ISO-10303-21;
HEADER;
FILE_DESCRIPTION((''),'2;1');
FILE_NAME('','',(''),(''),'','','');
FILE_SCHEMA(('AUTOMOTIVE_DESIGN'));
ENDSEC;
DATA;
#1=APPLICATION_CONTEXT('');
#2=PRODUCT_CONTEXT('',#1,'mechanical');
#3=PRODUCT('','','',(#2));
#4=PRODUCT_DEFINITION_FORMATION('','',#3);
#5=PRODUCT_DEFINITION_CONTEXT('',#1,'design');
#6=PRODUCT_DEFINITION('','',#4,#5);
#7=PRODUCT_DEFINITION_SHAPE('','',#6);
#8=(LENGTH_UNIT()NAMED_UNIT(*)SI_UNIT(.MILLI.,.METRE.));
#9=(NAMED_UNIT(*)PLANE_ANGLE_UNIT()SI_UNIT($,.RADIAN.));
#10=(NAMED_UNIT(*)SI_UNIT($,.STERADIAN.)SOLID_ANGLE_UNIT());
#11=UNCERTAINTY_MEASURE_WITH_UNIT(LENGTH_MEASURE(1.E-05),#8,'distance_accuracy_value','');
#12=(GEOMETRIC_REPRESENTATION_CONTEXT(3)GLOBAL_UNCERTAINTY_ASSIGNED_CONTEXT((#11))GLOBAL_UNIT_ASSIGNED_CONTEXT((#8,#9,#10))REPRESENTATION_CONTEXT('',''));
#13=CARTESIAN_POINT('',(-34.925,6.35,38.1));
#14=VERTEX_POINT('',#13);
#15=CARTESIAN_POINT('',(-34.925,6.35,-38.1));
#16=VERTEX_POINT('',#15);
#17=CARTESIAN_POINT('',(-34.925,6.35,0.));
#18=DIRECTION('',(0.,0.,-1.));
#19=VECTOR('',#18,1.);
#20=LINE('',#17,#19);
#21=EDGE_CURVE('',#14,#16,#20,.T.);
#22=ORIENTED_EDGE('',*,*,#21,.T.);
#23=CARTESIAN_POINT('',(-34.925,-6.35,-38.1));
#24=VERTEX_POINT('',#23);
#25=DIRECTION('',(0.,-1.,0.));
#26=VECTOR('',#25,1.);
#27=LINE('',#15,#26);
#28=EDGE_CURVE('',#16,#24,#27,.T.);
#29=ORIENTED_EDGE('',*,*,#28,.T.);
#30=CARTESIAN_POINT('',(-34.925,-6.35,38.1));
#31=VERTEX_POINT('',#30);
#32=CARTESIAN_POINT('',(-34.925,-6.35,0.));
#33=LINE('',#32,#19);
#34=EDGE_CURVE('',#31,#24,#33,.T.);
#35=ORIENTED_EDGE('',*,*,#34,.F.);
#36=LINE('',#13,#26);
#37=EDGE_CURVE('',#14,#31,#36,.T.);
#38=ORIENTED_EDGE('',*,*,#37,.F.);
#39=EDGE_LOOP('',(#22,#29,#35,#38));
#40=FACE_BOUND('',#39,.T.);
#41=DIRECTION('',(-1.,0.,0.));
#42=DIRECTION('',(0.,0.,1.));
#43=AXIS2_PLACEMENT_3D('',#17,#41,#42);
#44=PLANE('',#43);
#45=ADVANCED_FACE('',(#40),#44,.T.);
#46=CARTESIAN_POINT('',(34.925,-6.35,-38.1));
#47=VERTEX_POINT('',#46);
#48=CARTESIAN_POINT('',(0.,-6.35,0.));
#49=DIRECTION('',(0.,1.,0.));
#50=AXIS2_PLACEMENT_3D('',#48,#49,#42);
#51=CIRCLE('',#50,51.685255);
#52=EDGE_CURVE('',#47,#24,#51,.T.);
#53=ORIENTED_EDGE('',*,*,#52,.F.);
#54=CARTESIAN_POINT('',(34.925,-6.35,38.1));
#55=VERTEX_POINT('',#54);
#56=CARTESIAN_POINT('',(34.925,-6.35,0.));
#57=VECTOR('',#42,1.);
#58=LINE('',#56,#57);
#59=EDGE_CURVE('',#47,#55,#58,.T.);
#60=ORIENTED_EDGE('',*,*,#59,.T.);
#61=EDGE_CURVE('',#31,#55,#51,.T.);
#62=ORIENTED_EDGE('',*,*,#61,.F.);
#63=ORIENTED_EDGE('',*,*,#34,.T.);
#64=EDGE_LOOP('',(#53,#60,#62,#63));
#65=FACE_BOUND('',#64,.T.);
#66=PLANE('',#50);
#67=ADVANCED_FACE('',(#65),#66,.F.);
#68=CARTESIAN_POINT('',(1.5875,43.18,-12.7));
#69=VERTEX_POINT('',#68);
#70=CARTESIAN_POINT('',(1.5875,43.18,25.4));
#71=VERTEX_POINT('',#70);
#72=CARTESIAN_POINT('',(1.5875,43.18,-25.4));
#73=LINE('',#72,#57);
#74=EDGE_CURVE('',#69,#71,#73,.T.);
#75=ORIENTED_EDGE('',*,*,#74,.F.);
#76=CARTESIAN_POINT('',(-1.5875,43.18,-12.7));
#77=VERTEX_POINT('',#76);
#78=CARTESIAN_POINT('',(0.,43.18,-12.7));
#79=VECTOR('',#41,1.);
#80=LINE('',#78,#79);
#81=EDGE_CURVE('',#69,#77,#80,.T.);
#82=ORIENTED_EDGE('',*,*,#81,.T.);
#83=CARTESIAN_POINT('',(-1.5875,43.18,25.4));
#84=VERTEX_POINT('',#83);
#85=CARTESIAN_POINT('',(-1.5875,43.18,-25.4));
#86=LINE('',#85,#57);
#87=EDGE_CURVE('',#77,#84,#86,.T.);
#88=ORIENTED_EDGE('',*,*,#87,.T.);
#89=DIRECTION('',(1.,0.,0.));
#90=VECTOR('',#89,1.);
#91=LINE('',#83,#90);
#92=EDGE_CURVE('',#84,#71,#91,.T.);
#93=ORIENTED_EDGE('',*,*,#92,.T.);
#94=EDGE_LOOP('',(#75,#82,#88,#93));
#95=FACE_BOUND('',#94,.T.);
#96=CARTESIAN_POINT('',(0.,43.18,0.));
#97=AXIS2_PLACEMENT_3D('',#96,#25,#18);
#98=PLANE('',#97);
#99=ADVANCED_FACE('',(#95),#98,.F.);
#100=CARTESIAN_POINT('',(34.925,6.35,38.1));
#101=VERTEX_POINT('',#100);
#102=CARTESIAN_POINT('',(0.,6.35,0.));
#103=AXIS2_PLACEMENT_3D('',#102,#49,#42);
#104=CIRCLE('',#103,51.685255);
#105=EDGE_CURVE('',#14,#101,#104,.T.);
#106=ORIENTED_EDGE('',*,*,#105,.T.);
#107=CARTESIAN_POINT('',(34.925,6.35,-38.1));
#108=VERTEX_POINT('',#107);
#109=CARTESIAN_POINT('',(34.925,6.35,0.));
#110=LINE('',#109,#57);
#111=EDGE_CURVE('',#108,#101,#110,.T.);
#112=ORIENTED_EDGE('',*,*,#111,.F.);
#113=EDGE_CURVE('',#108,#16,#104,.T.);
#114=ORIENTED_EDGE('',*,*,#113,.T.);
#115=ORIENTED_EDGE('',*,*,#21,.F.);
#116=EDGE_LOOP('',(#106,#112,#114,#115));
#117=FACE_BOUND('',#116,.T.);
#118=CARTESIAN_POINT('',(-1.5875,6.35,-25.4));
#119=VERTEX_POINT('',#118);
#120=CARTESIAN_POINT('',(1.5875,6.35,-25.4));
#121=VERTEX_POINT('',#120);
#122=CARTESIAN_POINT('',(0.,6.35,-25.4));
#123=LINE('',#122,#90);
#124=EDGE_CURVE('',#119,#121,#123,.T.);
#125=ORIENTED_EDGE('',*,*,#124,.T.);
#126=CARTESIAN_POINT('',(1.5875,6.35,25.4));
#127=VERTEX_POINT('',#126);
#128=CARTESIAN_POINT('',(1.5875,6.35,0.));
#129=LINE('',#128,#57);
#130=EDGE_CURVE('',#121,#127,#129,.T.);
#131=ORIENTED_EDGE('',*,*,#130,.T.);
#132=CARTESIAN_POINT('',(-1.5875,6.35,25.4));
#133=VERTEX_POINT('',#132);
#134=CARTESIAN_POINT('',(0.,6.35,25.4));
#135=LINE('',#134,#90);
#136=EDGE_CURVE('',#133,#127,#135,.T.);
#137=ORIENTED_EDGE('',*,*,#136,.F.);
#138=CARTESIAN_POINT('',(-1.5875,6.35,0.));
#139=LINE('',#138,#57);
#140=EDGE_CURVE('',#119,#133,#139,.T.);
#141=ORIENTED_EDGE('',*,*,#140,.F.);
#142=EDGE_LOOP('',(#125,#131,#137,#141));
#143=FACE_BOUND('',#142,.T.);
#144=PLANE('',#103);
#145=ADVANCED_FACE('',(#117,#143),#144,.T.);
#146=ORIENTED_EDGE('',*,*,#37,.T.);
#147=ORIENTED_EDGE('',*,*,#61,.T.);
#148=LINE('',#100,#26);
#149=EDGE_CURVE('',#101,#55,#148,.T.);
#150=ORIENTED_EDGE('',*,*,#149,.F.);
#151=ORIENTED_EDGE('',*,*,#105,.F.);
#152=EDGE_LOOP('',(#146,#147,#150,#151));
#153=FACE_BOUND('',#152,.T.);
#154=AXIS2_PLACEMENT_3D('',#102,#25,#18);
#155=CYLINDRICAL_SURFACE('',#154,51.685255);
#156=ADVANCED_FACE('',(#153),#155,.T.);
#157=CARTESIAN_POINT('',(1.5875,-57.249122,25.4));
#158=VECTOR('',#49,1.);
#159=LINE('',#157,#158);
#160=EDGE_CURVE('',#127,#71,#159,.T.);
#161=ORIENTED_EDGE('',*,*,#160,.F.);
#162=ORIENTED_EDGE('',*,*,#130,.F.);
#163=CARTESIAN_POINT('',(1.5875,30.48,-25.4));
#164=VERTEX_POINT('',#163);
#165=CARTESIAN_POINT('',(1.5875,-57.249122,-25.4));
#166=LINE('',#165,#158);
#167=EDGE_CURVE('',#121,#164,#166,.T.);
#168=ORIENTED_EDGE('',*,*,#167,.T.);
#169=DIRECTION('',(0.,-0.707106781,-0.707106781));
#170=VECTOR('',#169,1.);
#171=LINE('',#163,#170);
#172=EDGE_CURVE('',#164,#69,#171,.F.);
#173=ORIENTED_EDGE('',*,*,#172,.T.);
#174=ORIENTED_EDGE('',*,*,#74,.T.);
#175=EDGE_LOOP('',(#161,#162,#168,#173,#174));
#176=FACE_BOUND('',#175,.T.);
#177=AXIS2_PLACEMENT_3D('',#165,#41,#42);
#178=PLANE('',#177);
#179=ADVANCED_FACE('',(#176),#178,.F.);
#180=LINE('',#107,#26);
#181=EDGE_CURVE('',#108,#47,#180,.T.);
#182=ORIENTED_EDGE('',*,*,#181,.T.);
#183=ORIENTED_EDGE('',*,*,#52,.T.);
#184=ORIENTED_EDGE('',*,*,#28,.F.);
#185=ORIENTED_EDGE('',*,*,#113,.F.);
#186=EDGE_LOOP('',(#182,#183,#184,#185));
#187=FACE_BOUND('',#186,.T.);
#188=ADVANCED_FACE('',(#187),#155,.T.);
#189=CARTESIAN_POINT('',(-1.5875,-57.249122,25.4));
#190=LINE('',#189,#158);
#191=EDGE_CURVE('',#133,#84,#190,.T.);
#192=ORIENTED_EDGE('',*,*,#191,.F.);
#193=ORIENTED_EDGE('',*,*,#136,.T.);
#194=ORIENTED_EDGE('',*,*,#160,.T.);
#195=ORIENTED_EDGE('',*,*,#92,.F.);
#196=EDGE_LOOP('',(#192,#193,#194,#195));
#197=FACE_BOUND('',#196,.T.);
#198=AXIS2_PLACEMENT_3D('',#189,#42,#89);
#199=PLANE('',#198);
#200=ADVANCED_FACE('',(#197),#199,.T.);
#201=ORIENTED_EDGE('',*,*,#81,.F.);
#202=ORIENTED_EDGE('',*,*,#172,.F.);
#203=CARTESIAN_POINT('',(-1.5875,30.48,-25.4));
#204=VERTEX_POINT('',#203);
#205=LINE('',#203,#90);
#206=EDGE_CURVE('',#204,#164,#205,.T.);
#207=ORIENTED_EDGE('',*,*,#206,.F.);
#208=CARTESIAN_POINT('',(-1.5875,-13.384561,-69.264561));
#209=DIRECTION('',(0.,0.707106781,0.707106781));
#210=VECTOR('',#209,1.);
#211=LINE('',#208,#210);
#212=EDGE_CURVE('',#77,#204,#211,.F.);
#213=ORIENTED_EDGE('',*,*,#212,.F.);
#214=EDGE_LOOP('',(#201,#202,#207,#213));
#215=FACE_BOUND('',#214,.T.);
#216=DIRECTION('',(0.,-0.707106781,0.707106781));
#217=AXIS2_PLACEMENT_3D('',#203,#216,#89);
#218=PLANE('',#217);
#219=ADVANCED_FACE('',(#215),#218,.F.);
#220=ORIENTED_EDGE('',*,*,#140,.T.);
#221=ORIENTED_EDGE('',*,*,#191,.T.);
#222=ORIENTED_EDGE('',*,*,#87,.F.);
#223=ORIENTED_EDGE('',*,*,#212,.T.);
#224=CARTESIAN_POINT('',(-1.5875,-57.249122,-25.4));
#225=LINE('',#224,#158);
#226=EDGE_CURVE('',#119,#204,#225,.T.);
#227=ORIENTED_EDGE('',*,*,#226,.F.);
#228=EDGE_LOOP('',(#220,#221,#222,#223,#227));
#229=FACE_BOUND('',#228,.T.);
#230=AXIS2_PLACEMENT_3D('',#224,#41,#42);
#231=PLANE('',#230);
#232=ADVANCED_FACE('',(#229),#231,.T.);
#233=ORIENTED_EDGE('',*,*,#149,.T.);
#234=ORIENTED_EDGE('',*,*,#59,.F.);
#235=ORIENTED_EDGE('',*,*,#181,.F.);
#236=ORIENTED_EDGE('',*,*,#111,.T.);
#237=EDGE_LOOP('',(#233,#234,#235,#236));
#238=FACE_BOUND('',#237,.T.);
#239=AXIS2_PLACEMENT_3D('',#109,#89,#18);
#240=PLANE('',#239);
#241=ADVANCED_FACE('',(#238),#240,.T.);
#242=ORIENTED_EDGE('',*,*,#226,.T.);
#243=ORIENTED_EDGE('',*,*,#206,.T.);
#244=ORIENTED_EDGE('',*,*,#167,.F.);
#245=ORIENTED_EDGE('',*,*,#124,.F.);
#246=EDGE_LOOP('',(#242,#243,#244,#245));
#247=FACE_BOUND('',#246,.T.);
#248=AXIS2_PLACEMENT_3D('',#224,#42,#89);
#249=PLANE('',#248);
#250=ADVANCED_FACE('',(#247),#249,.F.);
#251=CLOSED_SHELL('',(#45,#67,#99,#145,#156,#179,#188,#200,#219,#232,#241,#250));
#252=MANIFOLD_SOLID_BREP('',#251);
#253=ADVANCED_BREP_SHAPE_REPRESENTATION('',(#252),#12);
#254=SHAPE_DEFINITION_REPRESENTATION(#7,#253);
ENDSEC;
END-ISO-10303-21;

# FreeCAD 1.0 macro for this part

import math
import FreeCAD as App
import Part
import Sketcher
Q = App.Units.Quantity


def edges_at(feature, points):
    """Names of the edges that pass closest to the given points."""
    edges = feature.Shape.Edges
    near = lambda p: min(range(len(edges)), key=lambda i: edges[i].distToShape(Part.Vertex(*p))[0])
    return sorted({f"Edge{near(p) + 1}" for p in points})


def add_polygon(sketch, points):
    """Adds a closed chain of lines whose ends are joined by coincident constraints."""
    first, n = sketch.GeometryCount, len(points)
    for a, b in zip(points, points[1:] + points[:1]):
        sketch.addGeometry(Part.LineSegment(App.Vector(*a, 0), App.Vector(*b, 0)), False)
    for i in range(n):
        sketch.addConstraint(Sketcher.Constraint("Coincident", first + i, 2, first + (i + 1) % n, 1))

doc = App.newDocument("Part")
body = doc.addObject("PartDesign::Body", "Body")

# Sketch on XZ plane
sketch1 = body.newObject("Sketcher::SketchObject", "Sketch")
sketch1.AttachmentSupport = (doc.getObject("XZ_Plane"), [""])
sketch1.MapMode = "FlatFace"
sketch1.addGeometry(Part.LineSegment(App.Vector(-34.9, -38.1, 0), App.Vector(-34.9, 38.1, 0)), False)  # 0
sketch1.addGeometry(Part.ArcOfCircle(Part.Circle(App.Vector(0, 0, 0), App.Vector(0, 0, 1), 51.7), math.radians(47), math.radians(133)), False)  # 1
sketch1.addGeometry(Part.LineSegment(App.Vector(34.9, 38.1, 0), App.Vector(34.9, -38.1, 0)), False)  # 2
sketch1.addGeometry(Part.ArcOfCircle(Part.Circle(App.Vector(0, 0, 0), App.Vector(0, 0, 1), 51.7), math.radians(-133), math.radians(-47)), False)  # 3
add_polygon(sketch1, [(1.6, 25.4), (-1.6, 25.4), (-1.6, -25.4), (1.6, -25.4)])  # lines 4-7
sketch1.addConstraint([
    Sketcher.Constraint("Coincident", 0, 2, 1, 2),
    Sketcher.Constraint("Coincident", 1, 1, 2, 1),
    Sketcher.Constraint("Coincident", 2, 2, 3, 2),
    Sketcher.Constraint("Coincident", 3, 1, 0, 1),
    Sketcher.Constraint("Vertical", 0),
    Sketcher.Constraint("Vertical", 2),
    Sketcher.Constraint("Horizontal", 4),
    Sketcher.Constraint("Vertical", 5),
    Sketcher.Constraint("Horizontal", 6),
    Sketcher.Constraint("Vertical", 7),
    Sketcher.Constraint("Coincident", 1, 3, -1, 1),
    Sketcher.Constraint("Coincident", 3, 3, -1, 1),
    Sketcher.Constraint("Equal", 1, 3),
    Sketcher.Constraint("Symmetric", 4, 2, 6, 2, -1, 1),
    Sketcher.Constraint("Horizontal", 0, 2, 1, 1),
    Sketcher.Constraint("DistanceY", 0, 1, 0, 2, Q("3 in")),
    Sketcher.Constraint("DistanceY", 5, 2, 5, 1, Q("2 in")),
    Sketcher.Constraint("DistanceX", 4, 2, 4, 1, Q("0.125 in")),
    Sketcher.Constraint("DistanceX", 0, 2, 1, 1, Q("2.75 in")),
])
pad1 = body.newObject("PartDesign::Pad", "Pad")
pad1.Profile = sketch1
pad1.Length = Q("0.5 in")
pad1.Midplane = True

# Sketch on XZ plane
sketch2 = body.newObject("Sketcher::SketchObject", "Sketch001")
sketch2.AttachmentSupport = (doc.getObject("XZ_Plane"), [""])
sketch2.MapMode = "FlatFace"
add_polygon(sketch2, [(-1.6, -25.4), (-1.6, 25.4), (1.6, 25.4), (1.6, -25.4)])  # lines 0-3
sketch2.addConstraint([
    Sketcher.Constraint("Vertical", 0),
    Sketcher.Constraint("Horizontal", 1),
    Sketcher.Constraint("Vertical", 2),
    Sketcher.Constraint("Horizontal", 3),
    Sketcher.Constraint("Symmetric", 0, 2, 2, 2, -1, 1),
    Sketcher.Constraint("DistanceY", 0, 1, 0, 2, Q("2 in")),
    Sketcher.Constraint("DistanceX", 1, 1, 1, 2, Q("0.125 in")),
])
pad2 = body.newObject("PartDesign::Pad", "Pad001")
pad2.Profile = sketch2
pad2.Type = "TwoLengths"
pad2.Length = Q("1.7 in")
pad2.Length2 = Q("0.25 in")
pad2.Reversed = True
doc.recompute()

chamfer = body.newObject("PartDesign::Chamfer", "Chamfer")
chamfer.Base = (pad2, edges_at(pad2, [(0, 43.18, -25.4)]))
chamfer.Size = Q("0.5 in")

doc.recompute()
